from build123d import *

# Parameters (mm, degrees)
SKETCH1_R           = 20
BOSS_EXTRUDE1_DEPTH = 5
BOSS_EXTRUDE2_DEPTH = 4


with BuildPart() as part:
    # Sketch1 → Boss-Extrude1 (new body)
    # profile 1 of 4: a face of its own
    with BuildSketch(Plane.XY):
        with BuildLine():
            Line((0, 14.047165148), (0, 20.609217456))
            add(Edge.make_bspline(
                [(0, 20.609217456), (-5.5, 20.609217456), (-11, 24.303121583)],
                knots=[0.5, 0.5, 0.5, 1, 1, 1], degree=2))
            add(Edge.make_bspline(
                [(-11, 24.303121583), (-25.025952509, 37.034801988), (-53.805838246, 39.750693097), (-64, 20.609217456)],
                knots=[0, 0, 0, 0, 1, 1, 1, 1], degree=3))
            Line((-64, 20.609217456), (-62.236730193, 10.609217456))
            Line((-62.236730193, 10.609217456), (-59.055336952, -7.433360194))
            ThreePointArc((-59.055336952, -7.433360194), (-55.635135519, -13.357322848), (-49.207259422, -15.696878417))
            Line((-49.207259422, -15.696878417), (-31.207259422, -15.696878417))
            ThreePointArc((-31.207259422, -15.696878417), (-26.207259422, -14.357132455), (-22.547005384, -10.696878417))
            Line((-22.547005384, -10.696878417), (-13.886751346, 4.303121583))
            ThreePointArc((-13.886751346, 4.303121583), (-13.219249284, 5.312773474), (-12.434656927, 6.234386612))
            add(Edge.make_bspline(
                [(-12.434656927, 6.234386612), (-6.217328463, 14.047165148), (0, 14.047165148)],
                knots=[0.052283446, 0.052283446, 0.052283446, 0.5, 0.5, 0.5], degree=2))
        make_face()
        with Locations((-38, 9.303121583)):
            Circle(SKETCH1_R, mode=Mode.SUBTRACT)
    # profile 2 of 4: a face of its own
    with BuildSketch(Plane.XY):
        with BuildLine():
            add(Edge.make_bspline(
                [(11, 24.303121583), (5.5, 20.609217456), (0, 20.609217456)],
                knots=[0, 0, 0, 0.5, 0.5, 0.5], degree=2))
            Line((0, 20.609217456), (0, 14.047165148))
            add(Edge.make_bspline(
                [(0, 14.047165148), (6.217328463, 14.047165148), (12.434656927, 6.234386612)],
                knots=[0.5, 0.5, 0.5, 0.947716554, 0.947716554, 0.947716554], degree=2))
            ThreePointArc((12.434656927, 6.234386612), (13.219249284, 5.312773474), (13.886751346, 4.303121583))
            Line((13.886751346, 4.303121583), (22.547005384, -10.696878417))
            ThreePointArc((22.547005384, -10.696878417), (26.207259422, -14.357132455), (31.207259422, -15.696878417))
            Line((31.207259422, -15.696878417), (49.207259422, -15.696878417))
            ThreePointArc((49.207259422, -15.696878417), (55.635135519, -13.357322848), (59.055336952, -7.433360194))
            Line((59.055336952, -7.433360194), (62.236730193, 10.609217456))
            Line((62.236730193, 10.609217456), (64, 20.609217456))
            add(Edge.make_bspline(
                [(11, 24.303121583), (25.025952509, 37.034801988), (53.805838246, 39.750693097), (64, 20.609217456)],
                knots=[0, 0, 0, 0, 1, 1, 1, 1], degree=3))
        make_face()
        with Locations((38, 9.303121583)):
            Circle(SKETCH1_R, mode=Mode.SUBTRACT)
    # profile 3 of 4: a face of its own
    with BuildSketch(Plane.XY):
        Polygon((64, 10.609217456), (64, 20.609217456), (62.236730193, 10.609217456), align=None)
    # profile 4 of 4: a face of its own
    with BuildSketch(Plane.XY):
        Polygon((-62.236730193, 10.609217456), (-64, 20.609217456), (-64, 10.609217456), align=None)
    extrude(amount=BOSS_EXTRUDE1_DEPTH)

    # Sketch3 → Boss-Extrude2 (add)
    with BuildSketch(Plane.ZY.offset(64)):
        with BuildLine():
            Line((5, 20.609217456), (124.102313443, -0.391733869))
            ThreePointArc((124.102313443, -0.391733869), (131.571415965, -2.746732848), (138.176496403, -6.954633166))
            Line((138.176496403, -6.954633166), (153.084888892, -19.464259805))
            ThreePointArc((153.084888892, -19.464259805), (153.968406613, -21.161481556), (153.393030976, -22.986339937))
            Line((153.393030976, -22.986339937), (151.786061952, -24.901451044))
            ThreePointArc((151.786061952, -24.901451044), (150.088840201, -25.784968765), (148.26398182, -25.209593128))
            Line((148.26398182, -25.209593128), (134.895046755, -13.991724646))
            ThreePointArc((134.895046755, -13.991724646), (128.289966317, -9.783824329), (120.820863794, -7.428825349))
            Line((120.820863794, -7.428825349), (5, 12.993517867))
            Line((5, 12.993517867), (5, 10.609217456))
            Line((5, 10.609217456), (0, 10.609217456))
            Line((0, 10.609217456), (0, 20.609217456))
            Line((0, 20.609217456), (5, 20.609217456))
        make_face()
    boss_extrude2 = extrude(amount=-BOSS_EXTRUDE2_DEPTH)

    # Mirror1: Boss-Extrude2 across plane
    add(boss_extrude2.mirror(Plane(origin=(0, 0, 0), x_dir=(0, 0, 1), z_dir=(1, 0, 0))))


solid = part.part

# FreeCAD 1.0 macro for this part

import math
import FreeCAD as App
import Part
import Sketcher

V = App.Vector
Q = App.Units.Quantity

doc = App.newDocument("Part")
body = doc.addObject("PartDesign::Body", "Body")

# Sketch on XY plane
sketch1 = body.newObject("Sketcher::SketchObject", "Sketch")
sketch1.AttachmentSupport = (doc.getObject("XY_Plane"), [""])
sketch1.MapMode = "FlatFace"
sketch1.addGeometry([
    Part.BSplineCurve([V(-12.434657, 6.234387, 0), V(0, 21.859944, 0), V(12.434657, 6.234387, 0)], [3, 3], [0.052283446, 0.947716554], False, 2, [1, 1, 1], False),  # 0
    Part.ArcOfCircle(Part.Circle(V(5.226497, -0.696878, 0), V(0, 0, 1), 10), math.radians(30), math.radians(43.878111)),  # 1
    Part.LineSegment(V(13.886751, 4.303122, 0), V(22.547005, -10.696878, 0)),  # 2
    Part.ArcOfCircle(Part.Circle(V(31.207259, -5.696878, 0), V(0, 0, 1), 10), math.radians(-150), math.radians(-90)),  # 3
    Part.LineSegment(V(31.207259, -15.696878, 0), V(49.207259, -15.696878, 0)),  # 4
    Part.ArcOfCircle(Part.Circle(V(49.207259, -5.696878, 0), V(0, 0, 1), 10), math.radians(-90), math.radians(-10)),  # 5
    Part.LineSegment(V(59.055337, -7.43336, 0), V(62.23673, 10.609217, 0)),  # 6
    Part.LineSegment(V(62.23673, 10.609217, 0), V(64, 10.609217, 0)),  # 7
    Part.LineSegment(V(64, 10.609217, 0), V(64, 20.609217, 0)),  # 8
    Part.BSplineCurve([V(11, 24.303122, 0), V(25.025953, 37.034802, 0), V(53.805838, 39.750693, 0), V(64, 20.609217, 0)], [4, 4], [0, 1], False, 3, [1, 1, 1, 1], False),  # 9
    Part.BSplineCurve([V(11, 24.303122, 0), V(0, 16.915313, 0), V(-11, 24.303122, 0)], [3, 3], [0, 1], False, 2, [1, 1, 1], False),  # 10
    Part.BSplineCurve([V(-11, 24.303122, 0), V(-25.025953, 37.034802, 0), V(-53.805838, 39.750693, 0), V(-64, 20.609217, 0)], [4, 4], [0, 1], False, 3, [1, 1, 1, 1], False),  # 11
    Part.LineSegment(V(-64, 20.609217, 0), V(-64, 10.609217, 0)),  # 12
    Part.LineSegment(V(-64, 10.609217, 0), V(-62.23673, 10.609217, 0)),  # 13
    Part.LineSegment(V(-62.23673, 10.609217, 0), V(-59.055337, -7.43336, 0)),  # 14
    Part.ArcOfCircle(Part.Circle(V(-49.207259, -5.696878, 0), V(0, 0, 1), 10), math.radians(-170), math.radians(-90)),  # 15
    Part.LineSegment(V(-49.207259, -15.696878, 0), V(-31.207259, -15.696878, 0)),  # 16
    Part.ArcOfCircle(Part.Circle(V(-31.207259, -5.696878, 0), V(0, 0, 1), 10), math.radians(-90), math.radians(-30)),  # 17
    Part.LineSegment(V(-22.547005, -10.696878, 0), V(-13.886751, 4.303122, 0)),  # 18
    Part.ArcOfCircle(Part.Circle(V(-5.226497, -0.696878, 0), V(0, 0, 1), 10), math.radians(136.121889), math.radians(150)),  # 19
    Part.Circle(V(-38, 9.303122, 0), V(0, 0, 1), 20),  # 20
    Part.Circle(V(38, 9.303122, 0), V(0, 0, 1), 20),  # 21
], False)
sketch1.addConstraint([
    Sketcher.Constraint("Block", 0),
    Sketcher.Constraint("Block", 9),
    Sketcher.Constraint("Block", 10),
    Sketcher.Constraint("Block", 11),
    Sketcher.Constraint("Coincident", 0, 2, 1, 2),
    Sketcher.Constraint("Coincident", 1, 1, 2, 1),
    Sketcher.Constraint("Coincident", 2, 2, 3, 1),
    Sketcher.Constraint("Coincident", 3, 2, 4, 1),
    Sketcher.Constraint("Coincident", 4, 2, 5, 1),
    Sketcher.Constraint("Coincident", 5, 2, 6, 1),
    Sketcher.Constraint("Coincident", 6, 2, 7, 1),
    Sketcher.Constraint("Coincident", 7, 2, 8, 1),
    Sketcher.Constraint("Coincident", 8, 2, 9, 2),
    Sketcher.Constraint("Coincident", 11, 2, 12, 1),
    Sketcher.Constraint("Coincident", 12, 2, 13, 1),
    Sketcher.Constraint("Coincident", 13, 2, 14, 1),
    Sketcher.Constraint("Coincident", 14, 2, 15, 1),
    Sketcher.Constraint("Coincident", 15, 2, 16, 1),
    Sketcher.Constraint("Coincident", 16, 2, 17, 1),
    Sketcher.Constraint("Coincident", 17, 2, 18, 1),
    Sketcher.Constraint("Coincident", 18, 2, 19, 2),
    Sketcher.Constraint("Coincident", 19, 1, 0, 1),
    Sketcher.Constraint("Horizontal", 4),
    Sketcher.Constraint("Horizontal", 7),
    Sketcher.Constraint("Vertical", 8),
    Sketcher.Constraint("Vertical", 12),
    Sketcher.Constraint("Horizontal", 13),
    Sketcher.Constraint("Horizontal", 16),
    Sketcher.Constraint("Diameter", 20, 40.0),
    Sketcher.Constraint("Diameter", 21, 40.0),
    Sketcher.Constraint("Radius", 1, 10.0),
    Sketcher.Constraint("Radius", 3, 10.0),
    Sketcher.Constraint("Radius", 5, 10.0),
    Sketcher.Constraint("Radius", 15, 10.0),
    Sketcher.Constraint("Radius", 17, 10.0),
    Sketcher.Constraint("Radius", 19, 10.0),
    Sketcher.Constraint("DistanceX", 4, 1, 4, 2, 18.0),
    Sketcher.Constraint("DistanceX", 16, 1, 16, 2, 18.0),
    Sketcher.Constraint("DistanceY", 8, 1, 8, 2, 10.0),
    Sketcher.Constraint("DistanceY", 12, 2, 12, 1, 10.0),
    Sketcher.Constraint("DistanceX", 20, 3, -1, 1, 38.0),
    Sketcher.Constraint("DistanceX", -1, 1, 21, 3, 38.0),
    Sketcher.Constraint("DistanceY", 3, 3, 1, 3, 5.0),
    Sketcher.Constraint("DistanceX", 3, 3, 5, 3, 18.0),
    Sketcher.Constraint("DistanceY", 15, 3, 1, 3, 5.0),
    Sketcher.Constraint("DistanceX", 15, 3, 17, 3, 18.0),
    Sketcher.Constraint("DistanceY", 17, 3, 19, 3, 5.0),
    Sketcher.Constraint("DistanceY", 17, 3, 20, 3, 15.0),
    Sketcher.Constraint("DistanceY", 3, 3, 21, 3, 15.0),
    Sketcher.Constraint("DistanceY", 1, 3, 1, 1, 5.0),
    Sketcher.Constraint("DistanceY", 2, 2, 3, 3, 5.0),
    Sketcher.Constraint("DistanceX", 3, 2, 5, 3, 18.0),
    Sketcher.Constraint("DistanceX", 15, 2, 17, 3, 18.0),
    Sketcher.Constraint("DistanceY", 17, 2, 17, 3, 5.0),
    Sketcher.Constraint("DistanceY", 19, 3, 18, 2, 5.0),
    Sketcher.Constraint("DistanceX", 7, 1, 7, 2, 1.76327),
    Sketcher.Constraint("DistanceX", 13, 1, 13, 2, 1.76327),
    Sketcher.Constraint("Distance", 2, 17.320508),
    Sketcher.Constraint("Distance", 18, 17.320508),
    Sketcher.Constraint("DistanceY", 1, 3, -1, 1, 0.696878),
    Sketcher.Constraint("DistanceY", 5, 2, -1, 1, 7.43336),
    Sketcher.Constraint("DistanceY", 14, 2, -1, 1, 7.43336),
])
pad1 = body.newObject("PartDesign::Pad", "Pad")
pad1.Profile = sketch1
pad1.Length = 5

# Sketch on YZ plane
sketch2 = body.newObject("Sketcher::SketchObject", "Sketch001")
sketch2.AttachmentSupport = (doc.getObject("YZ_Plane"), [""])
sketch2.MapMode = "FlatFace"
sketch2.AttachmentOffset = App.Placement(V(0, 0, -64), App.Rotation())
sketch2.addGeometry([
    Part.LineSegment(V(-0.4, 124.1, 0), V(20.6, 5, 0)),  # 0
    Part.LineSegment(V(20.6, 5, 0), V(20.6, 0, 0)),  # 1
    Part.LineSegment(V(20.6, 0, 0), V(10.6, 0, 0)),  # 2
    Part.LineSegment(V(10.6, 0, 0), V(10.6, 5, 0)),  # 3
    Part.LineSegment(V(10.6, 5, 0), V(13, 5, 0)),  # 4
    Part.LineSegment(V(13, 5, 0), V(-7.4, 120.8, 0)),  # 5
    Part.ArcOfCircle(Part.Circle(V(-37, 115.6, 0), V(0, 0, 1), 30), math.radians(10), math.radians(40)),  # 6
    Part.LineSegment(V(-14, 134.9, 0), V(-25.2, 148.3, 0)),  # 7
    Part.ArcOfCircle(Part.Circle(V(-23.3, 149.9, 0), V(0, 0, 1), 2.5), math.radians(130), math.radians(220)),  # 8
    Part.LineSegment(V(-24.9, 151.8, 0), V(-23, 153.4, 0)),  # 9
    Part.ArcOfCircle(Part.Circle(V(-21.4, 151.5, 0), V(0, 0, 1), 2.5), math.radians(40), math.radians(130)),  # 10
    Part.LineSegment(V(-19.5, 153.1, 0), V(-7, 138.2, 0)),  # 11
    Part.ArcOfCircle(Part.Circle(V(-29.9, 118.9, 0), V(0, 0, 1), 30), math.radians(10), math.radians(40)),  # 12
], False)
sketch2.addConstraint([
    Sketcher.Constraint("Coincident", 0, 2, 1, 1),
    Sketcher.Constraint("Coincident", 1, 2, 2, 1),
    Sketcher.Constraint("Coincident", 2, 2, 3, 1),
    Sketcher.Constraint("Coincident", 3, 2, 4, 1),
    Sketcher.Constraint("Coincident", 4, 2, 5, 1),
    Sketcher.Constraint("Tangent", 5, 2, 6, 1),
    Sketcher.Constraint("Tangent", 6, 2, 7, 1),
    Sketcher.Constraint("Tangent", 7, 2, 8, 2),
    Sketcher.Constraint("Tangent", 8, 1, 9, 1),
    Sketcher.Constraint("Tangent", 9, 2, 10, 2),
    Sketcher.Constraint("Tangent", 10, 1, 11, 1),
    Sketcher.Constraint("Tangent", 11, 2, 12, 2),
    Sketcher.Constraint("Tangent", 12, 1, 0, 1),
    Sketcher.Constraint("Vertical", 1),
    Sketcher.Constraint("Horizontal", 2),
    Sketcher.Constraint("Vertical", 3),
    Sketcher.Constraint("Horizontal", 4),
    Sketcher.Constraint("Equal", 8, 10),
    Sketcher.Constraint("Equal", 6, 12),
    Sketcher.Constraint("PointOnObject", 1, 2, -1),
    Sketcher.Constraint("Parallel", 0, 5),
    Sketcher.Constraint("Perpendicular", 7, 9),
    Sketcher.Constraint("Perpendicular", 9, 11),
    Sketcher.Constraint("Horizontal", 0, 2, 3, 2),
    Sketcher.Constraint("Radius", 6, 30.0),
    Sketcher.Constraint("Radius", 8, 2.5),
    Sketcher.Constraint("DistanceX", 2, 2, 2, 1, 10.0),
    Sketcher.Constraint("DistanceY", 1, 2, 1, 1, 5.0),
    Sketcher.Constraint("Angle", 0, Q("-80 deg")),
    Sketcher.Constraint("Angle", 7, Q("130 deg")),
    Sketcher.Constraint("Distance", 9, 2.5),
    Sketcher.Constraint("DistanceX", 4, 1, 4, 2, 2.3843),
    Sketcher.Constraint("DistanceY", 6, 3, 10, 3, 35.866501),
    Sketcher.Constraint("DistanceX", 8, 3, 0, 2, 43.903699),
    Sketcher.Constraint("DistanceX", 10, 3, -1, 1, 21.379371),
])
pad2 = body.newObject("PartDesign::Pad", "Pad001")
pad2.Profile = sketch2
pad2.Length = 4
doc.recompute()

mirrored = body.newObject("PartDesign::Mirrored", "Mirrored")
mirrored.Originals = [pad2]
mirrored.MirrorPlane = (doc.getObject("YZ_Plane"), [""])
body.Tip = mirrored

doc.recompute()
